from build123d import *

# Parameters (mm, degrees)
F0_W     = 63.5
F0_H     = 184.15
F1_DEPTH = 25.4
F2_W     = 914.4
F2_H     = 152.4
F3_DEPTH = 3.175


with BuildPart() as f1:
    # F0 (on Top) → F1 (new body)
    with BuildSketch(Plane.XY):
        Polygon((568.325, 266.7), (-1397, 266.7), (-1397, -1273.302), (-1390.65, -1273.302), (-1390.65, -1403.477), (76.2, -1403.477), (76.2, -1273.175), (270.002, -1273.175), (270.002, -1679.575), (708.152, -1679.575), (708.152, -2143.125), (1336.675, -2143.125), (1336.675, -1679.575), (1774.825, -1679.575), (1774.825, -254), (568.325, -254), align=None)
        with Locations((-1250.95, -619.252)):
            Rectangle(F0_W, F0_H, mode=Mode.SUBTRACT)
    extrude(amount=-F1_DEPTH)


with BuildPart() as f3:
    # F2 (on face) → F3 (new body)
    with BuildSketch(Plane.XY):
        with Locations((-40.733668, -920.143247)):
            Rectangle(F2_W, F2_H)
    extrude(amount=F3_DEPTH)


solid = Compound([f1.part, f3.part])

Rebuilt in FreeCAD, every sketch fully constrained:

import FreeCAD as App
import Part
import Sketcher
Q = App.Units.Quantity

doc = App.newDocument("Part")
body = doc.addObject("PartDesign::Body", "Body")

sketch1 = doc.addObject("Sketcher::SketchObject", "Sketch")
body.addObject(sketch1)
sketch1.AttachmentSupport = (doc.XY_Plane, [""])
sketch1.MapMode = "FlatFace"
sketch1.addGeometry([
    Part.LineSegment(App.Vector(568, 267, 0), App.Vector(-1397, 267, 0)),
    Part.LineSegment(App.Vector(-1397, 267, 0), App.Vector(-1397, -1273, 0)),
    Part.LineSegment(App.Vector(-1397, -1273, 0), App.Vector(-1391, -1273, 0)),
    Part.LineSegment(App.Vector(-1391, -1273, 0), App.Vector(-1391, -1403, 0)),
    Part.LineSegment(App.Vector(-1391, -1403, 0), App.Vector(76, -1403, 0)),
    Part.LineSegment(App.Vector(76, -1403, 0), App.Vector(76, -1273, 0)),
    Part.LineSegment(App.Vector(76, -1273, 0), App.Vector(270, -1273, 0)),
    Part.LineSegment(App.Vector(270, -1273, 0), App.Vector(270, -1680, 0)),
    Part.LineSegment(App.Vector(270, -1680, 0), App.Vector(708, -1680, 0)),
    Part.LineSegment(App.Vector(708, -1680, 0), App.Vector(708, -2143, 0)),
    Part.LineSegment(App.Vector(708, -2143, 0), App.Vector(1337, -2143, 0)),
    Part.LineSegment(App.Vector(1337, -2143, 0), App.Vector(1337, -1680, 0)),
    Part.LineSegment(App.Vector(1337, -1680, 0), App.Vector(1775, -1680, 0)),
    Part.LineSegment(App.Vector(1775, -1680, 0), App.Vector(1775, -254, 0)),
    Part.LineSegment(App.Vector(1775, -254, 0), App.Vector(568, -254, 0)),
    Part.LineSegment(App.Vector(568, -254, 0), App.Vector(568, 267, 0)),
    Part.LineSegment(App.Vector(-1219, -711, 0), App.Vector(-1283, -711, 0)),
    Part.LineSegment(App.Vector(-1283, -711, 0), App.Vector(-1283, -527, 0)),
    Part.LineSegment(App.Vector(-1283, -527, 0), App.Vector(-1219, -527, 0)),
    Part.LineSegment(App.Vector(-1219, -527, 0), App.Vector(-1219, -711, 0)),
], False)
sketch1.addConstraint([
    Sketcher.Constraint("Coincident", 0, 2, 1, 1),
    Sketcher.Constraint("Coincident", 1, 2, 2, 1),
    Sketcher.Constraint("Coincident", 2, 2, 3, 1),
    Sketcher.Constraint("Coincident", 3, 2, 4, 1),
    Sketcher.Constraint("Coincident", 4, 2, 5, 1),
    Sketcher.Constraint("Coincident", 5, 2, 6, 1),
    Sketcher.Constraint("Coincident", 6, 2, 7, 1),
    Sketcher.Constraint("Coincident", 7, 2, 8, 1),
    Sketcher.Constraint("Coincident", 8, 2, 9, 1),
    Sketcher.Constraint("Coincident", 9, 2, 10, 1),
    Sketcher.Constraint("Coincident", 10, 2, 11, 1),
    Sketcher.Constraint("Coincident", 11, 2, 12, 1),
    Sketcher.Constraint("Coincident", 12, 2, 13, 1),
    Sketcher.Constraint("Coincident", 13, 2, 14, 1),
    Sketcher.Constraint("Coincident", 14, 2, 15, 1),
    Sketcher.Constraint("Coincident", 15, 2, 0, 1),
    Sketcher.Constraint("Coincident", 16, 2, 17, 1),
    Sketcher.Constraint("Coincident", 17, 2, 18, 1),
    Sketcher.Constraint("Coincident", 18, 2, 19, 1),
    Sketcher.Constraint("Coincident", 19, 2, 16, 1),
    Sketcher.Constraint("Horizontal", 0),
    Sketcher.Constraint("Vertical", 1),
    Sketcher.Constraint("Horizontal", 2),
    Sketcher.Constraint("Vertical", 3),
    Sketcher.Constraint("Horizontal", 4),
    Sketcher.Constraint("Vertical", 5),
    Sketcher.Constraint("Horizontal", 6),
    Sketcher.Constraint("Vertical", 7),
    Sketcher.Constraint("Horizontal", 8),
    Sketcher.Constraint("Vertical", 9),
    Sketcher.Constraint("Horizontal", 10),
    Sketcher.Constraint("Vertical", 11),
    Sketcher.Constraint("Horizontal", 12),
    Sketcher.Constraint("Vertical", 13),
    Sketcher.Constraint("Horizontal", 14),
    Sketcher.Constraint("Vertical", 15),
    Sketcher.Constraint("Horizontal", 16),
    Sketcher.Constraint("Vertical", 17),
    Sketcher.Constraint("Horizontal", 18),
    Sketcher.Constraint("Vertical", 19),
    Sketcher.Constraint("Horizontal", 8, 2, 11, 2),
    Sketcher.Constraint("Equal", 8, 12),
    Sketcher.Constraint("DistanceY", 7, 2, 7, 1, Q("16 in")),
    Sketcher.Constraint("DistanceX", 14, 2, 14, 1, Q("47.5 in")),
    Sketcher.Constraint("DistanceX", 16, 2, 16, 1, Q("2.5 in")),
    Sketcher.Constraint("DistanceY", 15, 1, 15, 2, Q("20.5 in")),
    Sketcher.Constraint("DistanceX", 0, 2, -1, 1, Q("55 in")),
    Sketcher.Constraint("DistanceX", -1, 1, 4, 2, Q("3 in")),
    Sketcher.Constraint("DistanceY", 13, 2, -1, 1, Q("10 in")),
    Sketcher.Constraint("DistanceX", 18, 2, -1, 1, Q("48 in")),
    Sketcher.Constraint("DistanceX", 2, 1, 2, 2, Q("0.25 in")),
    Sketcher.Constraint("DistanceX", 6, 1, 6, 2, Q("7.63 in")),
    Sketcher.Constraint("DistanceX", 8, 1, 8, 2, Q("17.25 in")),
    Sketcher.Constraint("DistanceY", 1, 2, 1, 1, Q("60.63 in")),
    Sketcher.Constraint("DistanceY", 5, 1, 5, 2, Q("5.13 in")),
    Sketcher.Constraint("DistanceY", 9, 2, 9, 1, Q("18.25 in")),
    Sketcher.Constraint("DistanceY", 17, 1, 17, 2, Q("7.25 in")),
    Sketcher.Constraint("DistanceY", 3, 2, 17, 2, Q("34.5 in")),
    Sketcher.Constraint("DistanceX", 0, 2, 0, 1, Q("77.375 in")),
    Sketcher.Constraint("DistanceY", 3, 2, 3, 1, Q("5.125 in")),
])
pad1 = doc.addObject("PartDesign::Pad", "Pad")
body.addObject(pad1)
pad1.Profile = sketch1
pad1.Length = Q("1 in")
pad1.Reversed = True
body2 = doc.addObject("PartDesign::Body", "Body001")

sketch2 = doc.addObject("Sketcher::SketchObject", "Sketch001")
body2.addObject(sketch2)
sketch2.AttachmentSupport = (doc.getObject("XY_Plane001"), [""])
sketch2.MapMode = "FlatFace"
sketch2.addGeometry([
    Part.LineSegment(App.Vector(-498, -844, 0), App.Vector(-498, -996, 0)),
    Part.LineSegment(App.Vector(-498, -996, 0), App.Vector(416, -996, 0)),
    Part.LineSegment(App.Vector(416, -996, 0), App.Vector(416, -844, 0)),
    Part.LineSegment(App.Vector(416, -844, 0), App.Vector(-498, -844, 0)),
], False)
sketch2.addConstraint([
    Sketcher.Constraint("Coincident", 0, 2, 1, 1),
    Sketcher.Constraint("Coincident", 1, 2, 2, 1),
    Sketcher.Constraint("Coincident", 2, 2, 3, 1),
    Sketcher.Constraint("Coincident", 3, 2, 0, 1),
    Sketcher.Constraint("Vertical", 0),
    Sketcher.Constraint("Horizontal", 1),
    Sketcher.Constraint("Vertical", 2),
    Sketcher.Constraint("Horizontal", 3),
    Sketcher.Constraint("DistanceX", 1, 1, 1, 2, Q("36 in")),
    Sketcher.Constraint("DistanceY", 0, 2, 0, 1, Q("6 in")),
    Sketcher.Constraint("DistanceX", 0, 2, -1, 1, 497.933668),
    Sketcher.Constraint("DistanceY", 0, 2, -1, 1, 996.343247),
])
pad2 = doc.addObject("PartDesign::Pad", "Pad001")
body2.addObject(pad2)
pad2.Profile = sketch2
pad2.Length = Q("0.125 in")

doc.recompute()
